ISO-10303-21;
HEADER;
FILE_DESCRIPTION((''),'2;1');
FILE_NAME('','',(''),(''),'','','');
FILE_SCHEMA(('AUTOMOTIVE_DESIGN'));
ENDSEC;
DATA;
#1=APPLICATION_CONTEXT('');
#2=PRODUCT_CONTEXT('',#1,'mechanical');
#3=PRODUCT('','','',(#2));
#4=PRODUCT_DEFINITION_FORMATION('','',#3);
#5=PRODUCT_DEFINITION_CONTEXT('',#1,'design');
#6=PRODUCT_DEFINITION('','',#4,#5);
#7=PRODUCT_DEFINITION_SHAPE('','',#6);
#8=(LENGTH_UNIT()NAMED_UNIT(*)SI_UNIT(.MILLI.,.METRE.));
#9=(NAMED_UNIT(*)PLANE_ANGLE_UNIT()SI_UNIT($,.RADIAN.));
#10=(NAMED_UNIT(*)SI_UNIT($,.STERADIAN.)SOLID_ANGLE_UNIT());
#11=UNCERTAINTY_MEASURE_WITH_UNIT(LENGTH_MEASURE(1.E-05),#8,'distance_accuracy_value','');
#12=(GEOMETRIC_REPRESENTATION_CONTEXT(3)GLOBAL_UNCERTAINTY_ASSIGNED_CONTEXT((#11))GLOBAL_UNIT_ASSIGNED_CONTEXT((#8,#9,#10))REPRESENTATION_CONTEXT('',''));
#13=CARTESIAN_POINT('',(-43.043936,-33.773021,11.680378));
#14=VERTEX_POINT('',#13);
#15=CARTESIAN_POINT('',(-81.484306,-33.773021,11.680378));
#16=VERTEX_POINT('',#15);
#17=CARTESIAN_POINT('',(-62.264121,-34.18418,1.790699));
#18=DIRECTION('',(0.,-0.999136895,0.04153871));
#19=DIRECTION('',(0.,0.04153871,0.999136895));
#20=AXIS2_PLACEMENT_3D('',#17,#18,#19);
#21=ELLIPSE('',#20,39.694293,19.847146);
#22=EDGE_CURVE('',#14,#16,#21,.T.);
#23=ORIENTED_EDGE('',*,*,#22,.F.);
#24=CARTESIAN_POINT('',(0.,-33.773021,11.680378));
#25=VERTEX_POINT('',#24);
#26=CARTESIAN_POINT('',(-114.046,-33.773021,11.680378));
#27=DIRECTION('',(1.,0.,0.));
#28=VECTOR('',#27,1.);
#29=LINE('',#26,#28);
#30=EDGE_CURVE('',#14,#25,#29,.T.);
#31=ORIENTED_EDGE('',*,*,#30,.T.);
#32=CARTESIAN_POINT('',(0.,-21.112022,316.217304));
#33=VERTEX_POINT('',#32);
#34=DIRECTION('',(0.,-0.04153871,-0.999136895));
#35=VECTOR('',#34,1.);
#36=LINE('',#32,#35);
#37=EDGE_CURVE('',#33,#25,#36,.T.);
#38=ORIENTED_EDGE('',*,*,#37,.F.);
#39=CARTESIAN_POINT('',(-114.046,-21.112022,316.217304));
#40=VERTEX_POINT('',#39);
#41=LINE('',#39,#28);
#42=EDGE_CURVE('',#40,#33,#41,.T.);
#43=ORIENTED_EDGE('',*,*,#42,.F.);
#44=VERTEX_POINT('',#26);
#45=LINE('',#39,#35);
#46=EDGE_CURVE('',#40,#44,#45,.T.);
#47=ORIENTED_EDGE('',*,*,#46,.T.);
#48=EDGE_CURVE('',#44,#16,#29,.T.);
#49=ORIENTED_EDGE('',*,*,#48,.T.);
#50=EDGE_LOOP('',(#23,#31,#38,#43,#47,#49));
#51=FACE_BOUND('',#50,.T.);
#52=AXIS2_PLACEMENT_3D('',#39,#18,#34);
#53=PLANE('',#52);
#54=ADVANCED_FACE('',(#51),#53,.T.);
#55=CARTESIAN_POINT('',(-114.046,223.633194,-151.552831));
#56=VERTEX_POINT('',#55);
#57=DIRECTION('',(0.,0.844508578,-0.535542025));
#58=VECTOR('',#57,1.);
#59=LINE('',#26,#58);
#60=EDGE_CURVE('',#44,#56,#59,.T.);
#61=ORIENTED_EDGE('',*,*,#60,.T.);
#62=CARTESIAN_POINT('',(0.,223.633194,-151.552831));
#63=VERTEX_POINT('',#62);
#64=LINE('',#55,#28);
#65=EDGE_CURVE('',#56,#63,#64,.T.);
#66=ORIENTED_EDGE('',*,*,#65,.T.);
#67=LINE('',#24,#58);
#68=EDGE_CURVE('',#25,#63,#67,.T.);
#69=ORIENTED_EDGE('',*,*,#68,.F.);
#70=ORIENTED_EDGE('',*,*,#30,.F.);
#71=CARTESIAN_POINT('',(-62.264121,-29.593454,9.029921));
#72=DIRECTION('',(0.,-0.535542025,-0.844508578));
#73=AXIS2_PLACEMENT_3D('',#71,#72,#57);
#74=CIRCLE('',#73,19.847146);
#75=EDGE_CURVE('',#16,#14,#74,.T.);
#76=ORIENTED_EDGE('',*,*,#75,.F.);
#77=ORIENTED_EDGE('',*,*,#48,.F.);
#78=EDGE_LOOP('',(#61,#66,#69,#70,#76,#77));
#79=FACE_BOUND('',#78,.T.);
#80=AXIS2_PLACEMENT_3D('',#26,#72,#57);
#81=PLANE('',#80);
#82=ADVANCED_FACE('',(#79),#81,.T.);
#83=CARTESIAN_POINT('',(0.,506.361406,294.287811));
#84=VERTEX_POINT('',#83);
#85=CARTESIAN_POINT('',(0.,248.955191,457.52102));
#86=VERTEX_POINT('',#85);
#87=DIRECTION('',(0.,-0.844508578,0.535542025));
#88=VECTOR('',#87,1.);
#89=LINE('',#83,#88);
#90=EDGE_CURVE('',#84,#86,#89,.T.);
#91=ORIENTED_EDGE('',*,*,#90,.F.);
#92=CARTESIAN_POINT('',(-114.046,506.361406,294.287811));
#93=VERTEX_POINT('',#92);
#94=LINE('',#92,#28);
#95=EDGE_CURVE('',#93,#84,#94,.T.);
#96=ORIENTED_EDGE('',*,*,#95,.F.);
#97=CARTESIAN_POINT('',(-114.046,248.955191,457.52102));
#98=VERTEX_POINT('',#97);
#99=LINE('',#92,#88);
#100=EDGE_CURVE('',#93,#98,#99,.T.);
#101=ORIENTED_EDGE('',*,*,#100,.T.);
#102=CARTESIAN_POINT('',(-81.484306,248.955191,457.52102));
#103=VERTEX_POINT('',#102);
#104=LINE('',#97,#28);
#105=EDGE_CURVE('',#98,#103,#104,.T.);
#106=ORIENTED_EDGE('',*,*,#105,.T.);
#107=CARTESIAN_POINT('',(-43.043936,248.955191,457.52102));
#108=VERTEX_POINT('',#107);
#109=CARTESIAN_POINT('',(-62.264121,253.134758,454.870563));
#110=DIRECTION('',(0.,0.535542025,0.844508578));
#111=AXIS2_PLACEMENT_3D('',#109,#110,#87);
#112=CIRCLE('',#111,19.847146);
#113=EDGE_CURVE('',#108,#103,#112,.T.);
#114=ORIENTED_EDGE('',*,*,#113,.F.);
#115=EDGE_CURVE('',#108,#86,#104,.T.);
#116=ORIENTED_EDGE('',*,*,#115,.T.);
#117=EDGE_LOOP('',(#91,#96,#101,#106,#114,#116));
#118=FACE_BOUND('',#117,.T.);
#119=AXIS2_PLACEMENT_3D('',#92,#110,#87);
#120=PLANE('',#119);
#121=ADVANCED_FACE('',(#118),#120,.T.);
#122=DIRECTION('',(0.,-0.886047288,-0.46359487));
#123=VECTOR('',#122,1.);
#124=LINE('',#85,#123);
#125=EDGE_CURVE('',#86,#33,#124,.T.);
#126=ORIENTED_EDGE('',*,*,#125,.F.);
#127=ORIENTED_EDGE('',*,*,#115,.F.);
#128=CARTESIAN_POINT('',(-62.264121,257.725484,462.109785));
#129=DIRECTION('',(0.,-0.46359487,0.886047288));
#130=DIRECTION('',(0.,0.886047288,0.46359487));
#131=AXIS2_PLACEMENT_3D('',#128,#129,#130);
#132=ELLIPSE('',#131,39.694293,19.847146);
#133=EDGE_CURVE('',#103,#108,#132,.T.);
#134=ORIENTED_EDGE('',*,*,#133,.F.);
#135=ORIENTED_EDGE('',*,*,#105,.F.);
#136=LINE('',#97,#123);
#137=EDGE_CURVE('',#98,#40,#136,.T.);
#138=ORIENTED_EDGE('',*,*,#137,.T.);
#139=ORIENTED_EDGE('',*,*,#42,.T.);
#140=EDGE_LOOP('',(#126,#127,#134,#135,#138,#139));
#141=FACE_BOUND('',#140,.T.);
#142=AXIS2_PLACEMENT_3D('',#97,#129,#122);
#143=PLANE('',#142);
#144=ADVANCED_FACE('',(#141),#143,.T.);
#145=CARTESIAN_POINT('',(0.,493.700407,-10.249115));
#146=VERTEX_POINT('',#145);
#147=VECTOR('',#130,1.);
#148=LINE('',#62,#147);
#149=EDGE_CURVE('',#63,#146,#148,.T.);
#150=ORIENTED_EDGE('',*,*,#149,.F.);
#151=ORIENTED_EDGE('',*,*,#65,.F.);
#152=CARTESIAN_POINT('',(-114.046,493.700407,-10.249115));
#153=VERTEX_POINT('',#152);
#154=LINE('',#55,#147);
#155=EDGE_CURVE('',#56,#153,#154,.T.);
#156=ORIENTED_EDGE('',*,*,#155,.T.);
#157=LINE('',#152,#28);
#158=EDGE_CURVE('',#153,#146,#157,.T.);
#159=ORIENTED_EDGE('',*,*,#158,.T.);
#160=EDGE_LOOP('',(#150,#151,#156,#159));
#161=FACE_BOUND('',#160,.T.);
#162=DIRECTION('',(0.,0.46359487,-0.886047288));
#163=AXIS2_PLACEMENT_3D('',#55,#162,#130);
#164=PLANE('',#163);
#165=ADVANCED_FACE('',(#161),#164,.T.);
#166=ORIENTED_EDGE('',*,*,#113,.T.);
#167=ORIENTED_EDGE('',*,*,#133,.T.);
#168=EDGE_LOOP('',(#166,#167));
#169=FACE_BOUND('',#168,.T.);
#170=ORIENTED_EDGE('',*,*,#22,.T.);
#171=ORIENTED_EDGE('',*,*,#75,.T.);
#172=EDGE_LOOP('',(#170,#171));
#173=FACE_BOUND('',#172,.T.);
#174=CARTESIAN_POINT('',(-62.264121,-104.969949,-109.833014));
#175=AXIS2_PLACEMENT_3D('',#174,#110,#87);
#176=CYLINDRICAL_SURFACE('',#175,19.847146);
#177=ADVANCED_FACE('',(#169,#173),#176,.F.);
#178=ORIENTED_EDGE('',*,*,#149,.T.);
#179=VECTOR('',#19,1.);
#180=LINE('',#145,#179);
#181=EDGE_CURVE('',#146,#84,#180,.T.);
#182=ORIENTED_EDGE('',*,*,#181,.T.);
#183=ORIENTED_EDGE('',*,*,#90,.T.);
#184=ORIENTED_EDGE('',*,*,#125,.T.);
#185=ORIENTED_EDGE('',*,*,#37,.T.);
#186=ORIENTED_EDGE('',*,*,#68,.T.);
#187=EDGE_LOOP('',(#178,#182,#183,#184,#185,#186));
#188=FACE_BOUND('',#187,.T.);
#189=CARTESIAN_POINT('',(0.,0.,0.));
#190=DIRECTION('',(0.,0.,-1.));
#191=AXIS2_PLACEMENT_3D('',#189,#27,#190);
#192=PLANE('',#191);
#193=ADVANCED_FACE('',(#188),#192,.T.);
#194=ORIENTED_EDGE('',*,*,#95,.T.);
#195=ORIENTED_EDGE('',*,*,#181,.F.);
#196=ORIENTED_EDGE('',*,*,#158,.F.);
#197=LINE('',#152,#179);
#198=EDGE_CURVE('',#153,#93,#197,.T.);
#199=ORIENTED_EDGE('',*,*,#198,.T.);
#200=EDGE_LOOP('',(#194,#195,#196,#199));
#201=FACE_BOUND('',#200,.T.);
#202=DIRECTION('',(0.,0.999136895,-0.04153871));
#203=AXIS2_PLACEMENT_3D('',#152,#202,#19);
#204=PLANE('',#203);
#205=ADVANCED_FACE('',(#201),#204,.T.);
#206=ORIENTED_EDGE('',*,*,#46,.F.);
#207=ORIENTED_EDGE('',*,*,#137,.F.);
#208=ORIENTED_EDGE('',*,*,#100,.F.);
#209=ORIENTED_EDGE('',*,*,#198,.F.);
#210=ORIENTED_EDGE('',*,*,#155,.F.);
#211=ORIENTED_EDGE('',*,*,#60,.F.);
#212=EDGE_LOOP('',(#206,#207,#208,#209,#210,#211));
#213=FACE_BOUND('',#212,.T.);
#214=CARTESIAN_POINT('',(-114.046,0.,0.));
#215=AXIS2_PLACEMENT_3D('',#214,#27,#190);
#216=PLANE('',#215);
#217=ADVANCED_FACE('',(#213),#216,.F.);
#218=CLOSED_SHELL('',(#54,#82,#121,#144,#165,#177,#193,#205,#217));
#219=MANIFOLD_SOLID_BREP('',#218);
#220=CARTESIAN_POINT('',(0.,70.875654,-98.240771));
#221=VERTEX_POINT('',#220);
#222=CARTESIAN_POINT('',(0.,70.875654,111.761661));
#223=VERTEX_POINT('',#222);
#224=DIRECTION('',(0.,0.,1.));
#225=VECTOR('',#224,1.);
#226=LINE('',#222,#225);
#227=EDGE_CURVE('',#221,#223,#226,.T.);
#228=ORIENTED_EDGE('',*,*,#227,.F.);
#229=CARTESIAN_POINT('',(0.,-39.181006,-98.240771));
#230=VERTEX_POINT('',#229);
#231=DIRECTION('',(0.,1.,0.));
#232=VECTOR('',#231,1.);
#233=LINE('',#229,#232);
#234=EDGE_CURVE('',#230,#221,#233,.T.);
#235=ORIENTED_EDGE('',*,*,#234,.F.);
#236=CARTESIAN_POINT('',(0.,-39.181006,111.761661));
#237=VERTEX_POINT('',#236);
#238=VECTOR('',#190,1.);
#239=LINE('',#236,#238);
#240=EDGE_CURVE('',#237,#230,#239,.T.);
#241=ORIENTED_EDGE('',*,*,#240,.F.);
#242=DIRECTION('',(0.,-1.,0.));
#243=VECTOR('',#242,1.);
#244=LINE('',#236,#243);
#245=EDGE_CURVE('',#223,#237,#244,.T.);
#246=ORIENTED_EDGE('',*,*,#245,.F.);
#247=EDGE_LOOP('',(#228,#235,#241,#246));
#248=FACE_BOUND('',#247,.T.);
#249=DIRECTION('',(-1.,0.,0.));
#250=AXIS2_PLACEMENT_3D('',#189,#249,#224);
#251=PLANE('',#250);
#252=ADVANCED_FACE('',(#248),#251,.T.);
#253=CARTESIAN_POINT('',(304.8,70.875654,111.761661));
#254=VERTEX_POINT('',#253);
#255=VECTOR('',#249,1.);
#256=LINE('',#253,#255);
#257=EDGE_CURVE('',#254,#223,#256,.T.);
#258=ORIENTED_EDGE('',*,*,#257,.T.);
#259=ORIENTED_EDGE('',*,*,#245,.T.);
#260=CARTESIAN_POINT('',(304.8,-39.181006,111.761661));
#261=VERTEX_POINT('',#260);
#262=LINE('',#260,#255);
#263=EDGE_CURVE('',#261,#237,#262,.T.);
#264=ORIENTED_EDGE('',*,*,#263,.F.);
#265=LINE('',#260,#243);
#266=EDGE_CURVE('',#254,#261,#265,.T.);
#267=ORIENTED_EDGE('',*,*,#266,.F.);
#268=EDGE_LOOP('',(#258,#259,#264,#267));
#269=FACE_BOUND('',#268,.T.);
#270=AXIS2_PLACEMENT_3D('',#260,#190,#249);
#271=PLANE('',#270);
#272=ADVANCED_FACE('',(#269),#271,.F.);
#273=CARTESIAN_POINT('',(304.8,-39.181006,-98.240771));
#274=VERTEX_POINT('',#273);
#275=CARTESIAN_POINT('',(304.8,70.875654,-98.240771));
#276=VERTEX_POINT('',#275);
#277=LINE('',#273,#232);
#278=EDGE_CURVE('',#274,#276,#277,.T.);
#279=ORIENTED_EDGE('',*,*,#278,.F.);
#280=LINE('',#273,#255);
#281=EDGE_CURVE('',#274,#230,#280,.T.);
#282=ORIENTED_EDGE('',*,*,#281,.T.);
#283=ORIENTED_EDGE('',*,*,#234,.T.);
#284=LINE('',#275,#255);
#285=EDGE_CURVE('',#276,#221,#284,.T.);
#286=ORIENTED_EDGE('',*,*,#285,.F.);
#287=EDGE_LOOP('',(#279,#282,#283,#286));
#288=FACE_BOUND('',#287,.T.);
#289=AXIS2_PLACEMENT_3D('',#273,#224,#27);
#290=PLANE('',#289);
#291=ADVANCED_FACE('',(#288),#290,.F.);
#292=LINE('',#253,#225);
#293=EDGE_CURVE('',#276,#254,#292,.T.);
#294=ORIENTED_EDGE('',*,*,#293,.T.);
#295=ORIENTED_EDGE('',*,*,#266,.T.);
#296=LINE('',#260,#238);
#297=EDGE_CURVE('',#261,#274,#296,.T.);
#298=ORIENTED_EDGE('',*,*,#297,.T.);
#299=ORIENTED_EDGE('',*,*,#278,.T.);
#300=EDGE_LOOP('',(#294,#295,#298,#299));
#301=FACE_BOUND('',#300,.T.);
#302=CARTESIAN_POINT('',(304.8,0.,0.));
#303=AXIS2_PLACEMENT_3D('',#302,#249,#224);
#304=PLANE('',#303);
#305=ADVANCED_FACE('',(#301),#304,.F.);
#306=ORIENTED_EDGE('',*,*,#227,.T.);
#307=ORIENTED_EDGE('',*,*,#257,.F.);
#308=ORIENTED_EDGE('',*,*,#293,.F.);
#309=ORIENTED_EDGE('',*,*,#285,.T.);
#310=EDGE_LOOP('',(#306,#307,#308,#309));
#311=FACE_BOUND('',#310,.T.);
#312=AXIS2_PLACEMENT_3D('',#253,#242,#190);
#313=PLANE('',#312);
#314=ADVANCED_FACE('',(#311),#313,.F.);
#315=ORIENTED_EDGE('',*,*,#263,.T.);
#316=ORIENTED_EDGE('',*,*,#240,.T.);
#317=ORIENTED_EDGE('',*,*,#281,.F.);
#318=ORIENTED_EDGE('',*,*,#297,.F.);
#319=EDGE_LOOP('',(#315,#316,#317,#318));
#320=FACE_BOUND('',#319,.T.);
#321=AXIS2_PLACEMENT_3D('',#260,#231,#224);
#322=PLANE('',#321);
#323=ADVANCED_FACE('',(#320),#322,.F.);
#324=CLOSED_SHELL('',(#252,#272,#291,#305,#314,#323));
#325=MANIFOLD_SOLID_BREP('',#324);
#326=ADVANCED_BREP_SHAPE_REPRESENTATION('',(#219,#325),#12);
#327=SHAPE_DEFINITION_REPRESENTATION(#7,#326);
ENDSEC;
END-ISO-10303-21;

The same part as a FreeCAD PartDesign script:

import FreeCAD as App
import Part
import Sketcher

V = App.Vector
Q = App.Units.Quantity


def add_polygon(sketch, points):
    """Adds a closed chain of lines whose ends are joined by coincident constraints."""
    first, n = sketch.GeometryCount, len(points)
    for a, b in zip(points, points[1:] + points[:1]):
        sketch.addGeometry(Part.LineSegment(App.Vector(*a, 0), App.Vector(*b, 0)), False)
    for i in range(n):
        sketch.addConstraint(Sketcher.Constraint("Coincident", first + i, 2, first + (i + 1) % n, 1))

doc = App.newDocument("Part")
body = doc.addObject("PartDesign::Body", "Body")

# Sketch on YZ plane
sketch1 = body.newObject("Sketcher::SketchObject", "Sketch")
sketch1.AttachmentSupport = (doc.getObject("YZ_Plane"), [""])
sketch1.MapMode = "FlatFace"
add_polygon(sketch1, [(71, 112), (-39, 112), (-39, -98), (71, -98)])  # lines 0-3
sketch1.addConstraint(Sketcher.Constraint("Horizontal", 0))
sketch1.addConstraint(Sketcher.Constraint("Vertical", 1))
sketch1.addConstraint(Sketcher.Constraint("Horizontal", 2))
sketch1.addConstraint(Sketcher.Constraint("Vertical", 3))
sketch1.addConstraint(Sketcher.Constraint("DistanceX", 0, 2, 0, 1, 110.05666))
sketch1.addConstraint(Sketcher.Constraint("DistanceY", 1, 2, 1, 1, 210.002433))
sketch1.addConstraint(Sketcher.Constraint("DistanceY", -1, 1, 0, 2, 111.761661))
sketch1.addConstraint(Sketcher.Constraint("DistanceX", 0, 2, -1, 1, 39.181006))
pad1 = body.newObject("PartDesign::Pad", "Pad")
pad1.Profile = sketch1
pad1.Length = Q("12 in")
body2 = doc.addObject("PartDesign::Body", "Body001")

# Sketch on YZ plane
sketch2 = body2.newObject("Sketcher::SketchObject", "Sketch001")
sketch2.AttachmentSupport = (doc.getObject("YZ_Plane001"), [""])
sketch2.MapMode = "FlatFace"
add_polygon(sketch2, [(494, -10), (506, 294), (249, 458), (-21, 316), (-34, 12), (224, -152)])  # lines 0-5
sketch2.addConstraint(Sketcher.Constraint("Parallel", 0, 3))
sketch2.addConstraint(Sketcher.Constraint("Parallel", 1, 4))
sketch2.addConstraint(Sketcher.Constraint("Parallel", 2, 5))
sketch2.addConstraint(Sketcher.Constraint("Equal", 0, 1))
sketch2.addConstraint(Sketcher.Constraint("Equal", 1, 2))
sketch2.addConstraint(Sketcher.Constraint("Equal", 2, 3))
sketch2.addConstraint(Sketcher.Constraint("Distance", 0, Q("12 in")))
sketch2.addConstraint(Sketcher.Constraint("DistanceY", -1, 1, 2, 2, Q("12.4495002 in")))
sketch2.addConstraint(Sketcher.Constraint("DistanceX", 3, 2, 2, 2, 12.660999))
sketch2.addConstraint(Sketcher.Constraint("DistanceY", -1, 1, 0, 2, 294.287811))
sketch2.addConstraint(Sketcher.Constraint("DistanceX", -1, 1, 1, 2, 248.955191))
sketch2.addConstraint(Sketcher.Constraint("DistanceY", -1, 1, 1, 2, 457.52102))
pad2 = body2.newObject("PartDesign::Pad", "Pad001")
pad2.Profile = sketch2
pad2.Length = Q("4.49 in")
pad2.Reversed = True

# Sketch on an angled plane
sketch3 = body2.newObject("Sketcher::SketchObject", "Sketch002")
sketch3.Placement = App.Placement(V(0, 278.324615, 438.896508), App.Rotation(V(1, 0, 0), V(0, 0.844508578, -0.535542025), V(0, 0.535542025, 0.844508578), "ZXY"))
sketch3.addGeometry(Part.Circle(V(-62, -30, 0), V(0, 0, 1), 20), False)
sketch3.addConstraint(Sketcher.Constraint("Diameter", 0, 39.694293))
sketch3.addConstraint(Sketcher.Constraint("DistanceX", 0, 3, -1, 1, 62.264121))
sketch3.addConstraint(Sketcher.Constraint("DistanceY", 0, 3, -1, 1, 29.827828))
pocket1 = body2.newObject("PartDesign::Pocket", "Pocket")
pocket1.Profile = sketch3
pocket1.Type = "ThroughAll"

doc.recompute()
